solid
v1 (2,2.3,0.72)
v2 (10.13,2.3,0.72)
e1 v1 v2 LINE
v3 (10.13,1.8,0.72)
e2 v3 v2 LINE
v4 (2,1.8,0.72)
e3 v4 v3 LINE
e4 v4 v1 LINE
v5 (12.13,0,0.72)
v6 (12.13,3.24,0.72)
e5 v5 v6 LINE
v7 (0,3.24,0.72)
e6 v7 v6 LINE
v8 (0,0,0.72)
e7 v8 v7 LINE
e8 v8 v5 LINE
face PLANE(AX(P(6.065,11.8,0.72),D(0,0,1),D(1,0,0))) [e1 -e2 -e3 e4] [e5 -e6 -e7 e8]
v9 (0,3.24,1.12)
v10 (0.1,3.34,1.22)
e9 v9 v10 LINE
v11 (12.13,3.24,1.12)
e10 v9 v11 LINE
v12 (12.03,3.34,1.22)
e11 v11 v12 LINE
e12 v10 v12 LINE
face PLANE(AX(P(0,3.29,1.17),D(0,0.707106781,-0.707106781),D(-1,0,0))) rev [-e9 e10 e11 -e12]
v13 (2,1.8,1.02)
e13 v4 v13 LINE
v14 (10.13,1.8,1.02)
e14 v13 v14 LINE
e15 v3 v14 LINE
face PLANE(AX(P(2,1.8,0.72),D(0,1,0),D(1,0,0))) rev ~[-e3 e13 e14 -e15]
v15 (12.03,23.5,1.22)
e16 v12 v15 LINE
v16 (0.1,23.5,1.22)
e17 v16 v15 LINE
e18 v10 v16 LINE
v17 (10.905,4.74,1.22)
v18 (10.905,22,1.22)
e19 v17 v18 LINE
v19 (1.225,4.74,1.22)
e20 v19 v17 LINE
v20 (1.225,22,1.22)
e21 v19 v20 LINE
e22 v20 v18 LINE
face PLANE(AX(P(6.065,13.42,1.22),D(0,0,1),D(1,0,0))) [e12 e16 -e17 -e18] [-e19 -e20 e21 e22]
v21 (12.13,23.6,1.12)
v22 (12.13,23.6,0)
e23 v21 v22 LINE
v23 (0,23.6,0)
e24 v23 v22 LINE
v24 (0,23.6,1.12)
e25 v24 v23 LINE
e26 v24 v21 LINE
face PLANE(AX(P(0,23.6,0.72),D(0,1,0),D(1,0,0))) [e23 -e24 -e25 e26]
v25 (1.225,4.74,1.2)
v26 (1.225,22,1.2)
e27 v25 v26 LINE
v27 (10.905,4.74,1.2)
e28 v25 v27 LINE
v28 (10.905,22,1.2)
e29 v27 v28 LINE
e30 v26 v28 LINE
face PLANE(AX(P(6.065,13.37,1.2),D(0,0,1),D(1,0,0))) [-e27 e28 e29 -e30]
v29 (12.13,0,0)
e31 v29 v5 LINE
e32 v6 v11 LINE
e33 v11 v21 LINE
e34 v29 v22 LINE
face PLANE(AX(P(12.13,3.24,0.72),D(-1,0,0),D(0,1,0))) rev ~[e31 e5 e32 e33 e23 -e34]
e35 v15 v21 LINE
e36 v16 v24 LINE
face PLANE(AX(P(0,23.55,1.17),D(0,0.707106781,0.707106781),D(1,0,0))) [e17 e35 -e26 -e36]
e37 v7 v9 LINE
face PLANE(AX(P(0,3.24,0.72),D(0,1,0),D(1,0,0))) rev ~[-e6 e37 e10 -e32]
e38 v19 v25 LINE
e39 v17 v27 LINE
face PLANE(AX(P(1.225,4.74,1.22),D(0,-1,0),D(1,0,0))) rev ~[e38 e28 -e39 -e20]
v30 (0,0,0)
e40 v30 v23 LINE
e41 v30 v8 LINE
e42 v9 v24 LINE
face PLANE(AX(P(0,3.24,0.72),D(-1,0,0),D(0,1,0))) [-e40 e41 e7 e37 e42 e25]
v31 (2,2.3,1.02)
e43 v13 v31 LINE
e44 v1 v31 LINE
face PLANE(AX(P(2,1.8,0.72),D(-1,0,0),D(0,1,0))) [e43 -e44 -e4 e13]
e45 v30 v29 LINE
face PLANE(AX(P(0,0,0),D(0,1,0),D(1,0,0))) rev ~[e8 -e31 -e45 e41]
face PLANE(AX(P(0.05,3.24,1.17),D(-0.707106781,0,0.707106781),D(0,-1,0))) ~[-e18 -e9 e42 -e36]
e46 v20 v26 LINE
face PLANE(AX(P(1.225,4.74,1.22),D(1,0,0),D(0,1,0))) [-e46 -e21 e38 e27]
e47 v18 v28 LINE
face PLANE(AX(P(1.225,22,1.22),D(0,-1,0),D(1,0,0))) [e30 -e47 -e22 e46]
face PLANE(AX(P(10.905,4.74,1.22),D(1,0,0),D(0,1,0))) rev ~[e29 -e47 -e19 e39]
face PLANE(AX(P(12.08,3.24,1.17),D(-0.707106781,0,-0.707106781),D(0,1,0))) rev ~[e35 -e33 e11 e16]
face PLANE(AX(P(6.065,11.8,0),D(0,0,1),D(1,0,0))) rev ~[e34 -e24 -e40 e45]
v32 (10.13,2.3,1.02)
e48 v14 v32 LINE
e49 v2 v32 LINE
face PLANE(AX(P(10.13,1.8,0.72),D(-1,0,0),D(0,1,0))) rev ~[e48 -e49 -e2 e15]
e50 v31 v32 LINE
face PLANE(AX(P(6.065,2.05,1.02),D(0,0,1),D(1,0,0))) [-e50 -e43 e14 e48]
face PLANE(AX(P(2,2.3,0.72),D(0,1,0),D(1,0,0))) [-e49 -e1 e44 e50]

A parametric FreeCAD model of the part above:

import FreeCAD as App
import Part
import Sketcher

V = App.Vector
Q = App.Units.Quantity


def edges_at(feature, points):
    """Names of the edges that pass closest to the given points."""
    edges = feature.Shape.Edges
    near = lambda p: min(range(len(edges)), key=lambda i: edges[i].distToShape(Part.Vertex(*p))[0])
    return sorted({f"Edge{near(p) + 1}" for p in points})

doc = App.newDocument("Part")
params = doc.addObject("Spreadsheet::Sheet", "Params")
for row, (alias, value) in enumerate([
    ("sketch1_height", "23.6 mm"),
    ("sketch1_width", "12.13 mm"),
    ("pad1_length", "0.72 mm"),
    ("sketch2_width", "12.13 mm"),
    ("sketch2_height", "20.36 mm"),
    ("pad2_length", "0.5 mm"),
    ("sketch3_height", "0.5 mm"),
    ("sketch3_width", "8.13 mm"),
    ("pad3_length", "0.3 mm"),
    ("sketch4_width", "9.68 mm"),
    ("sketch4_height", "17.26 mm"),
    ("pocket1_length", "0.02 mm"),
    ("chamfer_size", "0.1 mm"),
], start=1):
    params.set(f"A{row}", alias)
    params.set(f"B{row}", "=" + value)
    params.setAlias(f"B{row}", alias)

body = doc.addObject("PartDesign::Body", "Body")

sketch1 = body.newObject("Sketcher::SketchObject", "Sketch")
sketch1.AttachmentSupport = (doc.getObject("XY_Plane"), [""])
sketch1.MapMode = "FlatFace"
sketch1.addGeometry(Part.LineSegment(V(0, 24, 0), V(0, 0, 0)), False)
sketch1.addGeometry(Part.LineSegment(V(0, 0, 0), V(12, 0, 0)), False)
sketch1.addGeometry(Part.LineSegment(V(12, 0, 0), V(12, 24, 0)), False)
sketch1.addGeometry(Part.LineSegment(V(12, 24, 0), V(0, 24, 0)), False)
sketch1.addConstraint(Sketcher.Constraint("Coincident", 0, 2, 1, 1))
sketch1.addConstraint(Sketcher.Constraint("Coincident", 1, 2, 2, 1))
sketch1.addConstraint(Sketcher.Constraint("Coincident", 2, 2, 3, 1))
sketch1.addConstraint(Sketcher.Constraint("Coincident", 3, 2, 0, 1))
sketch1.addConstraint(Sketcher.Constraint("Vertical", 0))
sketch1.addConstraint(Sketcher.Constraint("Horizontal", 1))
sketch1.addConstraint(Sketcher.Constraint("Vertical", 2))
sketch1.addConstraint(Sketcher.Constraint("Horizontal", 3))
sketch1.addConstraint(Sketcher.Constraint("Coincident", 0, 2, -1, 1))
sketch1.addConstraint(Sketcher.Constraint("DistanceY", 0, 2, 0, 1, Q("23.6 mm")))
sketch1.addConstraint(Sketcher.Constraint("DistanceX", 1, 1, 1, 2, Q("12.13 mm")))
sketch1.setExpression("Constraints[9]", "Params.sketch1_height")
sketch1.setExpression("Constraints[10]", "Params.sketch1_width")
pad1 = body.newObject("PartDesign::Pad", "Pad")
pad1.Profile = sketch1
pad1.setExpression("Length", "Params.pad1_length")

sketch2 = body.newObject("Sketcher::SketchObject", "Sketch001")
sketch2.AttachmentSupport = (doc.getObject("XY_Plane"), [""])
sketch2.MapMode = "FlatFace"
sketch2.AttachmentOffset = App.Placement(V(0, 0, 0.72), App.Rotation())
sketch2.addGeometry(Part.LineSegment(V(0, 24, 0), V(0, 3, 0)), False)
sketch2.addGeometry(Part.LineSegment(V(0, 3, 0), V(12, 3, 0)), False)
sketch2.addGeometry(Part.LineSegment(V(12, 3, 0), V(12, 24, 0)), False)
sketch2.addGeometry(Part.LineSegment(V(12, 24, 0), V(0, 24, 0)), False)
sketch2.addConstraint(Sketcher.Constraint("Coincident", 0, 2, 1, 1))
sketch2.addConstraint(Sketcher.Constraint("Coincident", 1, 2, 2, 1))
sketch2.addConstraint(Sketcher.Constraint("Coincident", 2, 2, 3, 1))
sketch2.addConstraint(Sketcher.Constraint("Coincident", 3, 2, 0, 1))
sketch2.addConstraint(Sketcher.Constraint("Vertical", 0))
sketch2.addConstraint(Sketcher.Constraint("Horizontal", 1))
sketch2.addConstraint(Sketcher.Constraint("Vertical", 2))
sketch2.addConstraint(Sketcher.Constraint("Horizontal", 3))
sketch2.addConstraint(Sketcher.Constraint("PointOnObject", 0, 2, -2))
sketch2.addConstraint(Sketcher.Constraint("DistanceX", 1, 1, 1, 2, Q("12.13 mm")))
sketch2.addConstraint(Sketcher.Constraint("DistanceY", 0, 2, 0, 1, Q("20.36 mm")))
sketch2.addConstraint(Sketcher.Constraint("DistanceY", -1, 1, 2, 2, Q("23.6 mm")))
sketch2.setExpression("Constraints[9]", "Params.sketch2_width")
sketch2.setExpression("Constraints[10]", "Params.sketch2_height")
pad2 = body.newObject("PartDesign::Pad", "Pad001")
pad2.Profile = sketch2
pad2.setExpression("Length", "Params.pad2_length")

sketch3 = body.newObject("Sketcher::SketchObject", "Sketch002")
sketch3.AttachmentSupport = (doc.getObject("XY_Plane"), [""])
sketch3.MapMode = "FlatFace"
sketch3.AttachmentOffset = App.Placement(V(0, 0, 0.72), App.Rotation())
sketch3.addGeometry(Part.LineSegment(V(2, 2.3, 0), V(2, 1.8, 0)), False)
sketch3.addGeometry(Part.LineSegment(V(2, 1.8, 0), V(10.13, 1.8, 0)), False)
sketch3.addGeometry(Part.LineSegment(V(10.13, 1.8, 0), V(10.13, 2.3, 0)), False)
sketch3.addGeometry(Part.LineSegment(V(10.13, 2.3, 0), V(2, 2.3, 0)), False)
sketch3.addConstraint(Sketcher.Constraint("Coincident", 0, 2, 1, 1))
sketch3.addConstraint(Sketcher.Constraint("Coincident", 1, 2, 2, 1))
sketch3.addConstraint(Sketcher.Constraint("Coincident", 2, 2, 3, 1))
sketch3.addConstraint(Sketcher.Constraint("Coincident", 3, 2, 0, 1))
sketch3.addConstraint(Sketcher.Constraint("Vertical", 0))
sketch3.addConstraint(Sketcher.Constraint("Horizontal", 1))
sketch3.addConstraint(Sketcher.Constraint("Vertical", 2))
sketch3.addConstraint(Sketcher.Constraint("Horizontal", 3))
sketch3.addConstraint(Sketcher.Constraint("DistanceY", 0, 2, 0, 1, Q("0.5 mm")))
sketch3.addConstraint(Sketcher.Constraint("DistanceX", -1, 1, 0, 2, Q("2 mm")))
sketch3.addConstraint(Sketcher.Constraint("DistanceX", 1, 1, 1, 2, Q("8.13 mm")))
sketch3.addConstraint(Sketcher.Constraint("DistanceY", -1, 1, 0, 2, Q("1.8 mm")))
sketch3.setExpression("Constraints[8]", "Params.sketch3_height")
sketch3.setExpression("Constraints[10]", "Params.sketch3_width")
pad3 = body.newObject("PartDesign::Pad", "Pad002")
pad3.Profile = sketch3
pad3.setExpression("Length", "Params.pad3_length")

sketch4 = body.newObject("Sketcher::SketchObject", "Sketch003")
sketch4.AttachmentSupport = (doc.getObject("XY_Plane"), [""])
sketch4.MapMode = "FlatFace"
sketch4.AttachmentOffset = App.Placement(V(0, 0, 1.22), App.Rotation())
sketch4.addGeometry(Part.LineSegment(V(1, 22, 0), V(1, 5, 0)), False)
sketch4.addGeometry(Part.LineSegment(V(1, 5, 0), V(11, 5, 0)), False)
sketch4.addGeometry(Part.LineSegment(V(11, 5, 0), V(11, 22, 0)), False)
sketch4.addGeometry(Part.LineSegment(V(11, 22, 0), V(1, 22, 0)), False)
sketch4.addConstraint(Sketcher.Constraint("Coincident", 0, 2, 1, 1))
sketch4.addConstraint(Sketcher.Constraint("Coincident", 1, 2, 2, 1))
sketch4.addConstraint(Sketcher.Constraint("Coincident", 2, 2, 3, 1))
sketch4.addConstraint(Sketcher.Constraint("Coincident", 3, 2, 0, 1))
sketch4.addConstraint(Sketcher.Constraint("Vertical", 0))
sketch4.addConstraint(Sketcher.Constraint("Horizontal", 1))
sketch4.addConstraint(Sketcher.Constraint("Vertical", 2))
sketch4.addConstraint(Sketcher.Constraint("Horizontal", 3))
sketch4.addConstraint(Sketcher.Constraint("DistanceY", -1, 1, 2, 2, Q("22 mm")))
sketch4.addConstraint(Sketcher.Constraint("DistanceX", 1, 1, 1, 2, Q("9.68 mm")))
sketch4.addConstraint(Sketcher.Constraint("DistanceY", 0, 2, 0, 1, Q("17.26 mm")))
sketch4.addConstraint(Sketcher.Constraint("DistanceX", -1, 1, 0, 2, Q("1.225 mm")))
sketch4.setExpression("Constraints[9]", "Params.sketch4_width")
sketch4.setExpression("Constraints[10]", "Params.sketch4_height")
pocket1 = body.newObject("PartDesign::Pocket", "Pocket")
pocket1.Profile = sketch4
pocket1.setExpression("Length", "Params.pocket1_length")
doc.recompute()

chamfer = body.newObject("PartDesign::Chamfer", "Chamfer")
chamfer.Base = (pocket1, edges_at(pocket1, [
    (6.065, 23.6, 1.22),
    (0, 13.42, 1.22),
    (6.065, 3.24, 1.22),
    (12.13, 13.42, 1.22),
]))
chamfer.setExpression("Size", "Params.chamfer_size")

doc.recompute()
